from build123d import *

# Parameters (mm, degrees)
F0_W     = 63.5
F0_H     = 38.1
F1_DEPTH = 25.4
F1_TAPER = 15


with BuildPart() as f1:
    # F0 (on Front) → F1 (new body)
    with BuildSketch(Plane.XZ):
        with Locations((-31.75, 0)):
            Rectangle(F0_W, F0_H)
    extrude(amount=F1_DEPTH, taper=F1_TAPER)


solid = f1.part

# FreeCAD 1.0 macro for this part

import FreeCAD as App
import Part
import Sketcher

V = App.Vector
Q = App.Units.Quantity

doc = App.newDocument("Part")
body = doc.addObject("PartDesign::Body", "Body")

# Sketch on XZ plane
sketch1 = body.newObject("Sketcher::SketchObject", "Sketch")
sketch1.AttachmentSupport = (doc.getObject("XZ_Plane"), [""])
sketch1.MapMode = "FlatFace"
sketch1.addGeometry([
    Part.LineSegment(V(-64, 19, 0), V(-64, -19, 0)),
    Part.LineSegment(V(-64, -19, 0), V(0, -19, 0)),
    Part.LineSegment(V(0, -19, 0), V(0, 19, 0)),
    Part.LineSegment(V(0, 19, 0), V(-64, 19, 0)),
], False)
sketch1.addConstraint([
    Sketcher.Constraint("Coincident", 0, 2, 1, 1),
    Sketcher.Constraint("Coincident", 1, 2, 2, 1),
    Sketcher.Constraint("Coincident", 2, 2, 3, 1),
    Sketcher.Constraint("Coincident", 3, 2, 0, 1),
    Sketcher.Constraint("Vertical", 0),
    Sketcher.Constraint("Horizontal", 1),
    Sketcher.Constraint("Vertical", 2),
    Sketcher.Constraint("Horizontal", 3),
    Sketcher.Constraint("Symmetric", 1, 2, 2, 2, -1, 1),
    Sketcher.Constraint("DistanceX", 1, 1, 1, 2, Q("2.5 in")),
    Sketcher.Constraint("DistanceY", 0, 2, 0, 1, Q("1.5 in")),
])
pad1 = body.newObject("PartDesign::Pad", "Pad")
pad1.Profile = sketch1
pad1.Length = Q("1 in")
pad1.TaperAngle = -15

doc.recompute()
